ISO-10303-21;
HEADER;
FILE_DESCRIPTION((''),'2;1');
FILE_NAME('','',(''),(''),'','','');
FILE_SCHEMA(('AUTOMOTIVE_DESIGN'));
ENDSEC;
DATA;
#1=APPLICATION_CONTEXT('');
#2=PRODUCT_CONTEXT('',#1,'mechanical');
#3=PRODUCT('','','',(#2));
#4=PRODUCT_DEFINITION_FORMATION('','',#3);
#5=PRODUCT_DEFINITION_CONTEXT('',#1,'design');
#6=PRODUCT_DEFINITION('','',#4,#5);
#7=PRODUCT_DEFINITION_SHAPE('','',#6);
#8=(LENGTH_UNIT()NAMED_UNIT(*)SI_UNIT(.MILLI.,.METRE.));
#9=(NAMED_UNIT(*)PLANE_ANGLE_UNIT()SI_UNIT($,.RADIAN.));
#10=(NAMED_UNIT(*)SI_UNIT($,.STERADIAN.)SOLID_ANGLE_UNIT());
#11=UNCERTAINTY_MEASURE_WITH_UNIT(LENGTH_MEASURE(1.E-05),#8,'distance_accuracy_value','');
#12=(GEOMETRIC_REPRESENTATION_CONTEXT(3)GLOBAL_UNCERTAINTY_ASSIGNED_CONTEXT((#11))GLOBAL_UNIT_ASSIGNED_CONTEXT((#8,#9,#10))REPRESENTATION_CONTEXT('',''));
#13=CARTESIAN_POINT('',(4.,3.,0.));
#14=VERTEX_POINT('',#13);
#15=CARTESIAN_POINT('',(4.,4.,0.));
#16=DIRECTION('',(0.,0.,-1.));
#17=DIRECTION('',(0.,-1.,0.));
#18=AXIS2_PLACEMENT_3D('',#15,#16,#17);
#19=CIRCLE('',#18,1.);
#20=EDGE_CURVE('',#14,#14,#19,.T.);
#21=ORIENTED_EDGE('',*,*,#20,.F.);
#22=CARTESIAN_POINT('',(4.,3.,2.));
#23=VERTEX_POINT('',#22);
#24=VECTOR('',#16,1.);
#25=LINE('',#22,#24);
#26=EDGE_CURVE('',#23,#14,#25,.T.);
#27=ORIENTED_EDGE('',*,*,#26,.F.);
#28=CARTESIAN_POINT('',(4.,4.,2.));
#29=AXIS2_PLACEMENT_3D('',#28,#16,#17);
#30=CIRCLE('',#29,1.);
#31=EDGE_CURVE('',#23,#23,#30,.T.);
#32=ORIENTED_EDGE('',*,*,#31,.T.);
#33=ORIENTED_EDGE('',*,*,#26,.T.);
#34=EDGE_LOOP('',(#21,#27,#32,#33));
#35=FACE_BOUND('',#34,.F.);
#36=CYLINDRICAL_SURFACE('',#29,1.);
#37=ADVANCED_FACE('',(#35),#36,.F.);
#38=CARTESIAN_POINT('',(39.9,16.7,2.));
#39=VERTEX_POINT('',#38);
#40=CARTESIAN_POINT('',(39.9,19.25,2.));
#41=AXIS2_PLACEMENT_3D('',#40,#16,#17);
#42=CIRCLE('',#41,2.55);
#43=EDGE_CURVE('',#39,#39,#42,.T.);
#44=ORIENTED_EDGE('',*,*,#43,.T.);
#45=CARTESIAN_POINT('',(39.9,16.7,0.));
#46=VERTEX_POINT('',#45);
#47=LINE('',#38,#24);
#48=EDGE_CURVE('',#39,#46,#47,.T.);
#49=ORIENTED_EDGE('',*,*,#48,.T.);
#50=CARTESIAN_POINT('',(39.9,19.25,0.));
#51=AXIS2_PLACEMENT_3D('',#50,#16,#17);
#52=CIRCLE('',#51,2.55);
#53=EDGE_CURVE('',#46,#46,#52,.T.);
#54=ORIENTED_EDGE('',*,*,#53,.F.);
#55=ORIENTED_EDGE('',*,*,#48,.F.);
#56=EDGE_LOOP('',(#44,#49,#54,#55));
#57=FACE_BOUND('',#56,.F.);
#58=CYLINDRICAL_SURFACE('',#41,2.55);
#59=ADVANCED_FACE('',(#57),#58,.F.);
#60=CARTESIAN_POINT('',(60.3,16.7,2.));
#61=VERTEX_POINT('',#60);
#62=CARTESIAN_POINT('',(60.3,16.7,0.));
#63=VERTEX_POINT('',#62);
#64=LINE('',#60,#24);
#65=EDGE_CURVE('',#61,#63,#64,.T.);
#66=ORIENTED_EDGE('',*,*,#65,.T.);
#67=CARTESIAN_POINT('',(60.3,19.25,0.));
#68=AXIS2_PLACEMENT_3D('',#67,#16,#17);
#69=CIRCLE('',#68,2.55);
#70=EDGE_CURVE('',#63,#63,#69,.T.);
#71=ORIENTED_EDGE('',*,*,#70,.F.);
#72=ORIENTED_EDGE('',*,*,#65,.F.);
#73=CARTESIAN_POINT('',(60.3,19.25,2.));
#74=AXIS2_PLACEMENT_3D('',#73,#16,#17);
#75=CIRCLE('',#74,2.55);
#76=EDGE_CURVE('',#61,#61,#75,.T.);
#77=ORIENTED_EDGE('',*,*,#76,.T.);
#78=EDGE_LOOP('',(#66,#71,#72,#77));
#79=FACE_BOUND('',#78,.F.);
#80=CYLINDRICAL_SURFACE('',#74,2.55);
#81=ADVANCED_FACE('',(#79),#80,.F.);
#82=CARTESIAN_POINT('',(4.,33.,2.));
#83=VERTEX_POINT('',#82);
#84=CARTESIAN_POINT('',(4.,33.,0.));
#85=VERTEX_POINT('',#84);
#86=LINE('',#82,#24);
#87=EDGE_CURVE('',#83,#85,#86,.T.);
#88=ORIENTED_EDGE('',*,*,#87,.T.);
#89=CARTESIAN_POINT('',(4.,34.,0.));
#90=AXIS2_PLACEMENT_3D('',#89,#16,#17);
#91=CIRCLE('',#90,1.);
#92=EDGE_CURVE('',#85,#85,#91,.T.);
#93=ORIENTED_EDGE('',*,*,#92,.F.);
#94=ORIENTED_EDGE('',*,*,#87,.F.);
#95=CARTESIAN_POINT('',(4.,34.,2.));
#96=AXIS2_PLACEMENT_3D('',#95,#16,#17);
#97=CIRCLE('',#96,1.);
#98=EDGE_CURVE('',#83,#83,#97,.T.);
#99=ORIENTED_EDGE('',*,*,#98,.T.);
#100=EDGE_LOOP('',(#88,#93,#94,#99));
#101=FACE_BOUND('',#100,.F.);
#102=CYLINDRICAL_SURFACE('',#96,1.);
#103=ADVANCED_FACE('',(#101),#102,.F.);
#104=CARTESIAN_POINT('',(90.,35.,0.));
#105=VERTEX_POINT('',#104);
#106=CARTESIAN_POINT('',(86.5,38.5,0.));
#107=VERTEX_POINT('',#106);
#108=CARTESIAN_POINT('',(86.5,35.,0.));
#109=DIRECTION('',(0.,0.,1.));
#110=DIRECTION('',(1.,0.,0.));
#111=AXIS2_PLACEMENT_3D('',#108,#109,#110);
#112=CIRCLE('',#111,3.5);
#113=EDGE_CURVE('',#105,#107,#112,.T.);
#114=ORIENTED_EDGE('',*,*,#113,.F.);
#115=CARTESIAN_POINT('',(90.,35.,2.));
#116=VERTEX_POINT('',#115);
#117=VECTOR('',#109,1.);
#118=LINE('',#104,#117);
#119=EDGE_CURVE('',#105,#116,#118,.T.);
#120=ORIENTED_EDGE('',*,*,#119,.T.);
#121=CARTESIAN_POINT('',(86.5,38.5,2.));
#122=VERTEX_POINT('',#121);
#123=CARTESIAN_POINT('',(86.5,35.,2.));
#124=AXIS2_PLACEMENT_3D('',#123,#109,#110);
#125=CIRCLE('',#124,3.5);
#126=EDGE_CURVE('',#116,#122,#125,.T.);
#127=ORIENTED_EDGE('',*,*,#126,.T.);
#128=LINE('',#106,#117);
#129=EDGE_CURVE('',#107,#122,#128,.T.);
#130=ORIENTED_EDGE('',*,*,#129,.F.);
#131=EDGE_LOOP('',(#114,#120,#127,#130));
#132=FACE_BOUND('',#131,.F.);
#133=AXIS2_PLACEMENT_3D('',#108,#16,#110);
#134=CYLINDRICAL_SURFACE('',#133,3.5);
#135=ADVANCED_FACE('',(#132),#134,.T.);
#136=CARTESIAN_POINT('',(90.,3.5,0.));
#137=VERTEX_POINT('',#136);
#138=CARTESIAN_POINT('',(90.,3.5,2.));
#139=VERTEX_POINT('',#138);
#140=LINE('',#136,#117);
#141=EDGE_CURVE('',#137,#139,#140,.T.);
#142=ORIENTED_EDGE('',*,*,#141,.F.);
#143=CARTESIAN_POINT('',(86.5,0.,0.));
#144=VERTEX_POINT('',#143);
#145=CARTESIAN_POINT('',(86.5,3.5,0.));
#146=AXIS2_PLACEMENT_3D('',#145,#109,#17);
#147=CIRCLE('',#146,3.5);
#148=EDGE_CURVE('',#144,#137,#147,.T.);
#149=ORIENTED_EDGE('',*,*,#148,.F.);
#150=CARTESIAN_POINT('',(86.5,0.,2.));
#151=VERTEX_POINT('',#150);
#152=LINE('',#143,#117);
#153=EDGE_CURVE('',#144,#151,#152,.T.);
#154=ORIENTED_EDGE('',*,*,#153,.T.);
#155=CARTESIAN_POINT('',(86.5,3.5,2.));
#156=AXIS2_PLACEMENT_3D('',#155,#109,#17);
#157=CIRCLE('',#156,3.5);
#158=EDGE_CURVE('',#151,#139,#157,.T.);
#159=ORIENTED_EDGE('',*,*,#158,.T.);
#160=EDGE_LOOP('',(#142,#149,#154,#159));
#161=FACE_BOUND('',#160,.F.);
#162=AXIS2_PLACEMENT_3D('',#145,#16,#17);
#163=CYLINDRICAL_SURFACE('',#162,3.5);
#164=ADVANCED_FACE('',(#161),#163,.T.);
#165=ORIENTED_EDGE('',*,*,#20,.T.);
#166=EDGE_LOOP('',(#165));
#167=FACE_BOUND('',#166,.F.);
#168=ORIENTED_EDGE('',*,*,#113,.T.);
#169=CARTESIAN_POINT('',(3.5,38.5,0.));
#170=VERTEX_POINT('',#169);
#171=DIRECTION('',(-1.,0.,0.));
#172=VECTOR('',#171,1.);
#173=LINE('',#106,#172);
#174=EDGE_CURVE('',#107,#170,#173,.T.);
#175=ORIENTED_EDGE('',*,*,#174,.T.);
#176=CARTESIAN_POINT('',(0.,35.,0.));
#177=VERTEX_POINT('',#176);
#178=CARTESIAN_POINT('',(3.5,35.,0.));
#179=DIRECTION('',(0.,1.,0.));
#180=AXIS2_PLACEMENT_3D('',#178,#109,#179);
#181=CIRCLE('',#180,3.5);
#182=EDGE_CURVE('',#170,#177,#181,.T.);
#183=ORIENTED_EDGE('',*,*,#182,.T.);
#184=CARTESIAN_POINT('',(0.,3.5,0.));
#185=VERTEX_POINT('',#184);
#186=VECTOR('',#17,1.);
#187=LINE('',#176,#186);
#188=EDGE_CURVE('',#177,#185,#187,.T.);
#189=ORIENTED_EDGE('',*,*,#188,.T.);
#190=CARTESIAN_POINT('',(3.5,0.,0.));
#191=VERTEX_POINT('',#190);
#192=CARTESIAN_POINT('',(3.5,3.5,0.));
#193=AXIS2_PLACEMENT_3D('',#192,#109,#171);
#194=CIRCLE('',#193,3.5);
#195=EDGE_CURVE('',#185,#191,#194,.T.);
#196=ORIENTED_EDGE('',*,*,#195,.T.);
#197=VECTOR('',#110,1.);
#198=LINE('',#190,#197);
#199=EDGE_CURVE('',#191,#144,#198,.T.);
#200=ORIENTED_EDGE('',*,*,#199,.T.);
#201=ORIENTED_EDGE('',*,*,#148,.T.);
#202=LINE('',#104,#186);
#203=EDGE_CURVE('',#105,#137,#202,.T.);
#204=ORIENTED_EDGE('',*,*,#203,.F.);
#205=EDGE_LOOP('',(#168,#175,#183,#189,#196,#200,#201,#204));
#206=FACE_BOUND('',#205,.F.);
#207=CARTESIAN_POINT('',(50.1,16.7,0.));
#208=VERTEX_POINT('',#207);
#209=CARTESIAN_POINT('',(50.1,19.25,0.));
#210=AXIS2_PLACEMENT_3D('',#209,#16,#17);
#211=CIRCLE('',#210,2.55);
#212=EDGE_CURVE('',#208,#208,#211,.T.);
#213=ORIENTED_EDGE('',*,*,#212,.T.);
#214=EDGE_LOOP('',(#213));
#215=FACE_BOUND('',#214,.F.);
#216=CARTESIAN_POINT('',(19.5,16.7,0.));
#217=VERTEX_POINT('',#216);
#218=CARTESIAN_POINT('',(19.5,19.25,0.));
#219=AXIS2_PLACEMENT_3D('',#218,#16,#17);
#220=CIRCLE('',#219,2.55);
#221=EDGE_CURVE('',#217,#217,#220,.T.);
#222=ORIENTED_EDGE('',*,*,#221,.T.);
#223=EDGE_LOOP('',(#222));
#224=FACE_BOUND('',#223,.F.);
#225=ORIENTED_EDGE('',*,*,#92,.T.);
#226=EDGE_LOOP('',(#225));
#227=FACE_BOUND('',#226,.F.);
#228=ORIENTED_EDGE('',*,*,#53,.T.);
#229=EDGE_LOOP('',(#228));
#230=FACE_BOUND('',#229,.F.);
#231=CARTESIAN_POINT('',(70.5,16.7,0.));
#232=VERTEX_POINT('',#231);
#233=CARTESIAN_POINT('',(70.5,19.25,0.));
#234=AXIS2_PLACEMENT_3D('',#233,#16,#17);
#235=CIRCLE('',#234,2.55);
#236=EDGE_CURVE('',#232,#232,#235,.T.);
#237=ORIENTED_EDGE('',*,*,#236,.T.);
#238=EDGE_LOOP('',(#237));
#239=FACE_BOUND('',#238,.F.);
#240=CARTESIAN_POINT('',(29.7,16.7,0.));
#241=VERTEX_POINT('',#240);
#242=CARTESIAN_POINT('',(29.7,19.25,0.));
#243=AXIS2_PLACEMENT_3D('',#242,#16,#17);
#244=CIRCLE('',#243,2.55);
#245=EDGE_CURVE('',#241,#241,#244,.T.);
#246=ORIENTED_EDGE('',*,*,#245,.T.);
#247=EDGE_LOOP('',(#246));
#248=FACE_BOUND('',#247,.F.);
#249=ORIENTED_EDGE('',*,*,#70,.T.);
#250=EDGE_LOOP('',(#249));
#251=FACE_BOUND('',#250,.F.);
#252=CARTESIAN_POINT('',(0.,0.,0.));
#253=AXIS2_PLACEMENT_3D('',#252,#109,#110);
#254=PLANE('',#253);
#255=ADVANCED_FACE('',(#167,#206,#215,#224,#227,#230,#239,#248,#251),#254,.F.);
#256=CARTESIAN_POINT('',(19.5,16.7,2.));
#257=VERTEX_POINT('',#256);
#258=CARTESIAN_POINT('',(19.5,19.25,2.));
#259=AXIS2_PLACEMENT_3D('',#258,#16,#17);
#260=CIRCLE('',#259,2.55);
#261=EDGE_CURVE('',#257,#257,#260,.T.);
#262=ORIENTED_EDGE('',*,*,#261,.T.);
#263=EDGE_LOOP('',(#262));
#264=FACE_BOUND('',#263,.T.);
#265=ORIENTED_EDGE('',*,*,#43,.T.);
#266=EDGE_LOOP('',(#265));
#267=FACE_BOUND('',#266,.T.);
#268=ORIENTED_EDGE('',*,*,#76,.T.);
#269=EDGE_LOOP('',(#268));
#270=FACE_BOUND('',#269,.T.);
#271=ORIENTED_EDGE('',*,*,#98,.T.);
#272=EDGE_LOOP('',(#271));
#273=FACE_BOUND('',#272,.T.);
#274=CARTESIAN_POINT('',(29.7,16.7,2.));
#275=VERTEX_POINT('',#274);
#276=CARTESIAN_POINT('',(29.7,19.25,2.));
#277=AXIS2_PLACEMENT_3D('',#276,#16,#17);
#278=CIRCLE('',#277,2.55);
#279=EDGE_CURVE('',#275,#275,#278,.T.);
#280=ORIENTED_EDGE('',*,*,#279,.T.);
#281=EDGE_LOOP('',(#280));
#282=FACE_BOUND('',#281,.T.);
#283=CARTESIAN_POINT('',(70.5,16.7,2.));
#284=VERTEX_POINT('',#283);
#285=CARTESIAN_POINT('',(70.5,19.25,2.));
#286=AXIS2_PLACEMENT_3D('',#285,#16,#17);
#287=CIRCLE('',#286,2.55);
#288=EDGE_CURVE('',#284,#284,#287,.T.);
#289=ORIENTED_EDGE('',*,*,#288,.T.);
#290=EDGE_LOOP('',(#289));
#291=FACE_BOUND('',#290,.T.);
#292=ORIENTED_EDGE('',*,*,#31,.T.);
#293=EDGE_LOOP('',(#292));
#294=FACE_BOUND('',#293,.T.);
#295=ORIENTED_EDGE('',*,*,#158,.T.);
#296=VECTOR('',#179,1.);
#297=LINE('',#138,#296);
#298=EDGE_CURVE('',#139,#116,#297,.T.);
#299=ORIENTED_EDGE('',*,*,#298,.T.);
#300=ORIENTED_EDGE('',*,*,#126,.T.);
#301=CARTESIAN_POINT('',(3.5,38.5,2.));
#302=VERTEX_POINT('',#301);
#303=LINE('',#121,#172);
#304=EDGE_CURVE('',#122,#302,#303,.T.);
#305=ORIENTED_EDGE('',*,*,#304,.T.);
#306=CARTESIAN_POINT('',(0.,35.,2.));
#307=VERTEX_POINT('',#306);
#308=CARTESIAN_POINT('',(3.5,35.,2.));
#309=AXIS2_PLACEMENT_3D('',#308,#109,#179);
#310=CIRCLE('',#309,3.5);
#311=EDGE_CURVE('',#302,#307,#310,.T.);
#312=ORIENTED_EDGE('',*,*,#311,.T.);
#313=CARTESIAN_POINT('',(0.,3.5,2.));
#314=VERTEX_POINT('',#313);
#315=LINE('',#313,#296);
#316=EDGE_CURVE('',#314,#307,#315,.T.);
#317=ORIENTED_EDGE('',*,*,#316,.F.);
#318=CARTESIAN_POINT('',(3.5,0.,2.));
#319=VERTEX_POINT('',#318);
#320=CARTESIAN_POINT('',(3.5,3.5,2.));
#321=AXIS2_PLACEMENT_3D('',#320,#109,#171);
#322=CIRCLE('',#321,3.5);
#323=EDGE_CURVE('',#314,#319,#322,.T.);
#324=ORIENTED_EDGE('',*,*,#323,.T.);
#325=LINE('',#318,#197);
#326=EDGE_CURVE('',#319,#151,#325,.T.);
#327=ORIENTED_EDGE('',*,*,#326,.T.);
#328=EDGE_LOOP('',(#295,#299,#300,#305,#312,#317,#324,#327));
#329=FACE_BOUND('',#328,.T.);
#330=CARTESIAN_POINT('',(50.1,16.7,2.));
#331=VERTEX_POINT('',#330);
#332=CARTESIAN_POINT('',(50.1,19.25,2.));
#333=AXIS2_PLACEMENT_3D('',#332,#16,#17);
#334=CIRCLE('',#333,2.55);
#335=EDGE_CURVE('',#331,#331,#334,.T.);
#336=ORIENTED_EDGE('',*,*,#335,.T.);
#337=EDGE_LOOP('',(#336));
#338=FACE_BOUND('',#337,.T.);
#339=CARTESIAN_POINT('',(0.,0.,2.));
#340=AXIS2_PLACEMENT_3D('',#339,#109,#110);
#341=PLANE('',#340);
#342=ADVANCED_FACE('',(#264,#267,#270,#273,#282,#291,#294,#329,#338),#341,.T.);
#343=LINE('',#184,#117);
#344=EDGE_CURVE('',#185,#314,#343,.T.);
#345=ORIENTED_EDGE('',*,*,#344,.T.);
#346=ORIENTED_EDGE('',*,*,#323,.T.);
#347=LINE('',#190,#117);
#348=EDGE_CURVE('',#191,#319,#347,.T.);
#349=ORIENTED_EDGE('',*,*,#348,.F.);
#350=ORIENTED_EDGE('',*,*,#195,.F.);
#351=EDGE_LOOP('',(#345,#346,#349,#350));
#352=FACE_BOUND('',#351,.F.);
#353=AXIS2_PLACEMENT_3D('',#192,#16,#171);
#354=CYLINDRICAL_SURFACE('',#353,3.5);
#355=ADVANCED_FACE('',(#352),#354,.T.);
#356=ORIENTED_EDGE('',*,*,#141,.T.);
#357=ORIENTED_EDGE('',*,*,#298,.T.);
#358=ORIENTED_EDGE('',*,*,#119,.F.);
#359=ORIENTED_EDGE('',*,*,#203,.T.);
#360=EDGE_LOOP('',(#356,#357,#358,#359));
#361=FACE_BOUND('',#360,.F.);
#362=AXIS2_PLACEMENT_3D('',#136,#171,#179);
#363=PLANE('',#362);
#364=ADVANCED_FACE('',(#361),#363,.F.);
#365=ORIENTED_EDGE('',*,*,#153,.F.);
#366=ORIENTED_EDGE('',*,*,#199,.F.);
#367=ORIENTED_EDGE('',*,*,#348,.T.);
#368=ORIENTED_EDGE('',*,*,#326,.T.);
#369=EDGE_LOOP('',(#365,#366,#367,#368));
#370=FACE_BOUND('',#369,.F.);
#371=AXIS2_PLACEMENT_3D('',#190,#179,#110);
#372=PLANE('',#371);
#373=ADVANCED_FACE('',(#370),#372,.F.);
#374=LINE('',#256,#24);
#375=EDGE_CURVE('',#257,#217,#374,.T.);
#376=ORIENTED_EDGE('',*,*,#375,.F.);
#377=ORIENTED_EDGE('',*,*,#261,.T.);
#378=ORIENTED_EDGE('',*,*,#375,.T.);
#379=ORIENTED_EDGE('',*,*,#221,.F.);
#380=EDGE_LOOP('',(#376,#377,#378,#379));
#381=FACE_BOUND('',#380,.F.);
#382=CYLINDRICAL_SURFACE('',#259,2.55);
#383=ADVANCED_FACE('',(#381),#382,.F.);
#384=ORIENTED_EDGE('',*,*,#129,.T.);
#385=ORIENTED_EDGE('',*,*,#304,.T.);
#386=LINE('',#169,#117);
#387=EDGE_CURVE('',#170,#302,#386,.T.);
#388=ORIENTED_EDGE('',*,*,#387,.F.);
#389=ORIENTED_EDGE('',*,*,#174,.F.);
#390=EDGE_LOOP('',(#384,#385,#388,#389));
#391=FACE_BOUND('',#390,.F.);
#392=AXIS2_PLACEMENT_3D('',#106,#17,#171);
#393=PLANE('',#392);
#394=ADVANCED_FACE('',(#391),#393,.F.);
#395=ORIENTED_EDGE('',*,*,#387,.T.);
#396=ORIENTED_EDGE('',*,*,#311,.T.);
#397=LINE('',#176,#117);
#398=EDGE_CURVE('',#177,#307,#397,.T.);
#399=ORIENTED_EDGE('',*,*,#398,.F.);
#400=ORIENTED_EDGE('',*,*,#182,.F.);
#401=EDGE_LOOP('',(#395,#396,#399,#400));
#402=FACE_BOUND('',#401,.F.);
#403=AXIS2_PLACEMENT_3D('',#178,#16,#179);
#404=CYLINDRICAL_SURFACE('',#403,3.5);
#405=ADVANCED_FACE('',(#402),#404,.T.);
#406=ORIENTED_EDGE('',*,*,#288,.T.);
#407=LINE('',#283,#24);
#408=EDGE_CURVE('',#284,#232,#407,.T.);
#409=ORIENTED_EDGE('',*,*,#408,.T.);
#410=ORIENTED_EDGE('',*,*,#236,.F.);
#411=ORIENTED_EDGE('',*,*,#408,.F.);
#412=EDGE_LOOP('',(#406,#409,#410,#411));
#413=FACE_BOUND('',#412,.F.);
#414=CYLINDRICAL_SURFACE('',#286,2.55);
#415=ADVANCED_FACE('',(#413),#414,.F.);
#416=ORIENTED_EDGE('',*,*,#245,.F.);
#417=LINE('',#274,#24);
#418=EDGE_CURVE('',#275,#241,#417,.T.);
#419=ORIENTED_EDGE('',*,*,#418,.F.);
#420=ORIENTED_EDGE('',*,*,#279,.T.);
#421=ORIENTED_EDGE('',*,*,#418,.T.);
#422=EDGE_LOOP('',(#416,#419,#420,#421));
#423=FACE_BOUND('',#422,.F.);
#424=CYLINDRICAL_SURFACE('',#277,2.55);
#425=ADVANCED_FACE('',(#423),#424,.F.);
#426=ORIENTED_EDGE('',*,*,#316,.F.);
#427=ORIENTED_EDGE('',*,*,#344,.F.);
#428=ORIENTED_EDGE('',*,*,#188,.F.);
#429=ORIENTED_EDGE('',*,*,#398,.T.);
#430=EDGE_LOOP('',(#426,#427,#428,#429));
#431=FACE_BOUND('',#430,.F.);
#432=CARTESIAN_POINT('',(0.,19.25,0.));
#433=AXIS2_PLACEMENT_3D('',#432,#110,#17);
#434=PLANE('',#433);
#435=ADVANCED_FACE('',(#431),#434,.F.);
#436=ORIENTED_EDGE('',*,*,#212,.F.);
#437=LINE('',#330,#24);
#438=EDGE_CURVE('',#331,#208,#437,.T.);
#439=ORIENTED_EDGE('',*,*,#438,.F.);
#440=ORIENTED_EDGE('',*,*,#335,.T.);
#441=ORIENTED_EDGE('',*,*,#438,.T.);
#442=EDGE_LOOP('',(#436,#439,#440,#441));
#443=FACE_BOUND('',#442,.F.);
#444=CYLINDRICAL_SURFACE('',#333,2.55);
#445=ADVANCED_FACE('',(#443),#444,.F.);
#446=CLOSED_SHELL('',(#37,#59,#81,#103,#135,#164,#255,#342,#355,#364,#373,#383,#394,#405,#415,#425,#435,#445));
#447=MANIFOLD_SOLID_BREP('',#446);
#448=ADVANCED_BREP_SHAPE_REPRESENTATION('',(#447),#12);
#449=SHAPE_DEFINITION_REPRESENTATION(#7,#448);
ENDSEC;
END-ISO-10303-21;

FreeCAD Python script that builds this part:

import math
import FreeCAD as App
import Part
import Sketcher
from FreeCAD import Vector
Q = App.Units.Quantity

doc = App.newDocument("Part")
body = doc.addObject("PartDesign::Body", "Body")

# Sketch on XY plane
sketch1 = body.newObject("Sketcher::SketchObject", "Sketch")
sketch1.AttachmentSupport = (doc.getObject("XY_Plane"), [""])
sketch1.MapMode = "FlatFace"
sketch1.addGeometry(Part.ArcOfCircle(Part.Circle(Vector(3.5, 3.5, 0), Vector(0, 0, 1), 3.5), math.radians(180), math.radians(270)), False)
sketch1.addGeometry(Part.LineSegment(Vector(3.5, 0, 0), Vector(86.5, 0, 0)), False)
sketch1.addGeometry(Part.ArcOfCircle(Part.Circle(Vector(86.5, 3.5, 0), Vector(0, 0, 1), 3.5), math.radians(-90), math.radians(0)), False)
sketch1.addGeometry(Part.LineSegment(Vector(90, 3.5, 0), Vector(90, 35, 0)), False)
sketch1.addGeometry(Part.ArcOfCircle(Part.Circle(Vector(86.5, 35, 0), Vector(0, 0, 1), 3.5), math.radians(0), math.radians(90)), False)
sketch1.addGeometry(Part.LineSegment(Vector(86.5, 38.5, 0), Vector(3.5, 38.5, 0)), False)
sketch1.addGeometry(Part.ArcOfCircle(Part.Circle(Vector(3.5, 35, 0), Vector(0, 0, 1), 3.5), math.radians(90), math.radians(180)), False)
sketch1.addGeometry(Part.LineSegment(Vector(0, 35, 0), Vector(0, 3.5, 0)), False)
sketch1.addConstraint(Sketcher.Constraint("Tangent", 0, 2, 1, 1))
sketch1.addConstraint(Sketcher.Constraint("Tangent", 1, 2, 2, 1))
sketch1.addConstraint(Sketcher.Constraint("Tangent", 2, 2, 3, 1))
sketch1.addConstraint(Sketcher.Constraint("Tangent", 3, 2, 4, 1))
sketch1.addConstraint(Sketcher.Constraint("Tangent", 4, 2, 5, 1))
sketch1.addConstraint(Sketcher.Constraint("Tangent", 5, 2, 6, 1))
sketch1.addConstraint(Sketcher.Constraint("Tangent", 6, 2, 7, 1))
sketch1.addConstraint(Sketcher.Constraint("Tangent", 7, 2, 0, 1))
sketch1.addConstraint(Sketcher.Constraint("Horizontal", 1))
sketch1.addConstraint(Sketcher.Constraint("Vertical", 3))
sketch1.addConstraint(Sketcher.Constraint("Horizontal", 5))
sketch1.addConstraint(Sketcher.Constraint("Vertical", 7))
sketch1.addConstraint(Sketcher.Constraint("Equal", 0, 2))
sketch1.addConstraint(Sketcher.Constraint("Equal", 2, 4))
sketch1.addConstraint(Sketcher.Constraint("Equal", 4, 6))
sketch1.addConstraint(Sketcher.Constraint("PointOnObject", 0, 2, -1))
sketch1.addConstraint(Sketcher.Constraint("PointOnObject", 6, 2, -2))
sketch1.addConstraint(Sketcher.Constraint("Radius", 0, Q("3.5 mm")))
sketch1.addConstraint(Sketcher.Constraint("DistanceX", -1, 1, 2, 2, Q("90 mm")))
sketch1.addConstraint(Sketcher.Constraint("DistanceY", -1, 1, 4, 2, Q("38.5 mm")))
pad1 = body.newObject("PartDesign::Pad", "Pad")
pad1.Profile = sketch1
pad1.Length = 2

# Sketch on XY plane
sketch2 = body.newObject("Sketcher::SketchObject", "Sketch001")
sketch2.AttachmentSupport = (doc.getObject("XY_Plane"), [""])
sketch2.MapMode = "FlatFace"
sketch2.AttachmentOffset = App.Placement(Vector(0, 0, 2), App.Rotation())
sketch2.addGeometry(Part.Circle(Vector(19.5, 19.2, 0), Vector(0, 0, 1), 2.5), False)
sketch2.addGeometry(Part.Circle(Vector(29.7, 19.2, 0), Vector(0, 0, 1), 2.5), False)
sketch2.addGeometry(Part.Circle(Vector(39.9, 19.2, 0), Vector(0, 0, 1), 2.5), False)
sketch2.addGeometry(Part.Circle(Vector(50.1, 19.2, 0), Vector(0, 0, 1), 2.5), False)
sketch2.addGeometry(Part.Circle(Vector(60.3, 19.2, 0), Vector(0, 0, 1), 2.5), False)
sketch2.addGeometry(Part.Circle(Vector(70.5, 19.2, 0), Vector(0, 0, 1), 2.5), False)
sketch2.addConstraint(Sketcher.Constraint("Equal", 0, 1))
sketch2.addConstraint(Sketcher.Constraint("Equal", 1, 2))
sketch2.addConstraint(Sketcher.Constraint("Equal", 2, 3))
sketch2.addConstraint(Sketcher.Constraint("Equal", 3, 4))
sketch2.addConstraint(Sketcher.Constraint("Equal", 4, 5))
sketch2.addConstraint(Sketcher.Constraint("Horizontal", 0, 3, 1, 3))
sketch2.addConstraint(Sketcher.Constraint("Horizontal", 1, 3, 2, 3))
sketch2.addConstraint(Sketcher.Constraint("Horizontal", 2, 3, 3, 3))
sketch2.addConstraint(Sketcher.Constraint("Horizontal", 3, 3, 4, 3))
sketch2.addConstraint(Sketcher.Constraint("Horizontal", 4, 3, 5, 3))
sketch2.addConstraint(Sketcher.Constraint("Diameter", 0, Q("5.1 mm")))
sketch2.addConstraint(Sketcher.Constraint("DistanceX", 0, 3, 5, 3, Q("51 mm")))
sketch2.addConstraint(Sketcher.Constraint("DistanceX", -1, 1, 0, 3, Q("19.5 mm")))
sketch2.addConstraint(Sketcher.Constraint("DistanceX", -1, 1, 1, 3, Q("29.7 mm")))
sketch2.addConstraint(Sketcher.Constraint("DistanceX", -1, 1, 2, 3, Q("39.9 mm")))
sketch2.addConstraint(Sketcher.Constraint("DistanceX", -1, 1, 3, 3, Q("50.1 mm")))
sketch2.addConstraint(Sketcher.Constraint("DistanceX", -1, 1, 4, 3, Q("60.3 mm")))
sketch2.addConstraint(Sketcher.Constraint("DistanceY", -1, 1, 0, 3, Q("19.25 mm")))
doc.recompute()
hole = body.newObject("PartDesign::Hole", "Hole")
hole.Profile = sketch2
hole.ThreadType = "None"
hole.Diameter = 5.1
hole.DepthType = "Dimension"
hole.Depth = 2
hole.DrillPoint = "Flat"

# Sketch on XY plane
sketch3 = body.newObject("Sketcher::SketchObject", "Sketch002")
sketch3.AttachmentSupport = (doc.getObject("XY_Plane"), [""])
sketch3.MapMode = "FlatFace"
sketch3.AttachmentOffset = App.Placement(Vector(0, 0, 2), App.Rotation())
sketch3.addGeometry(Part.Circle(Vector(4, 4, 0), Vector(0, 0, 1), 1), False)
sketch3.addGeometry(Part.Circle(Vector(4, 34, 0), Vector(0, 0, 1), 1), False)
sketch3.addConstraint(Sketcher.Constraint("Equal", 0, 1))
sketch3.addConstraint(Sketcher.Constraint("Vertical", 0, 3, 1, 3))
sketch3.addConstraint(Sketcher.Constraint("Diameter", 0, Q("2 mm")))
sketch3.addConstraint(Sketcher.Constraint("DistanceX", -1, 1, 0, 3, Q("4 mm")))
sketch3.addConstraint(Sketcher.Constraint("DistanceY", -1, 1, 0, 3, Q("4 mm")))
sketch3.addConstraint(Sketcher.Constraint("DistanceY", -1, 1, 1, 3, Q("34 mm")))
doc.recompute()
hole2 = body.newObject("PartDesign::Hole", "Hole001")
hole2.Profile = sketch3
hole2.ThreadType = "None"
hole2.Diameter = 2
hole2.DepthType = "Dimension"
hole2.Depth = 2
hole2.DrillPoint = "Flat"

doc.recompute()
